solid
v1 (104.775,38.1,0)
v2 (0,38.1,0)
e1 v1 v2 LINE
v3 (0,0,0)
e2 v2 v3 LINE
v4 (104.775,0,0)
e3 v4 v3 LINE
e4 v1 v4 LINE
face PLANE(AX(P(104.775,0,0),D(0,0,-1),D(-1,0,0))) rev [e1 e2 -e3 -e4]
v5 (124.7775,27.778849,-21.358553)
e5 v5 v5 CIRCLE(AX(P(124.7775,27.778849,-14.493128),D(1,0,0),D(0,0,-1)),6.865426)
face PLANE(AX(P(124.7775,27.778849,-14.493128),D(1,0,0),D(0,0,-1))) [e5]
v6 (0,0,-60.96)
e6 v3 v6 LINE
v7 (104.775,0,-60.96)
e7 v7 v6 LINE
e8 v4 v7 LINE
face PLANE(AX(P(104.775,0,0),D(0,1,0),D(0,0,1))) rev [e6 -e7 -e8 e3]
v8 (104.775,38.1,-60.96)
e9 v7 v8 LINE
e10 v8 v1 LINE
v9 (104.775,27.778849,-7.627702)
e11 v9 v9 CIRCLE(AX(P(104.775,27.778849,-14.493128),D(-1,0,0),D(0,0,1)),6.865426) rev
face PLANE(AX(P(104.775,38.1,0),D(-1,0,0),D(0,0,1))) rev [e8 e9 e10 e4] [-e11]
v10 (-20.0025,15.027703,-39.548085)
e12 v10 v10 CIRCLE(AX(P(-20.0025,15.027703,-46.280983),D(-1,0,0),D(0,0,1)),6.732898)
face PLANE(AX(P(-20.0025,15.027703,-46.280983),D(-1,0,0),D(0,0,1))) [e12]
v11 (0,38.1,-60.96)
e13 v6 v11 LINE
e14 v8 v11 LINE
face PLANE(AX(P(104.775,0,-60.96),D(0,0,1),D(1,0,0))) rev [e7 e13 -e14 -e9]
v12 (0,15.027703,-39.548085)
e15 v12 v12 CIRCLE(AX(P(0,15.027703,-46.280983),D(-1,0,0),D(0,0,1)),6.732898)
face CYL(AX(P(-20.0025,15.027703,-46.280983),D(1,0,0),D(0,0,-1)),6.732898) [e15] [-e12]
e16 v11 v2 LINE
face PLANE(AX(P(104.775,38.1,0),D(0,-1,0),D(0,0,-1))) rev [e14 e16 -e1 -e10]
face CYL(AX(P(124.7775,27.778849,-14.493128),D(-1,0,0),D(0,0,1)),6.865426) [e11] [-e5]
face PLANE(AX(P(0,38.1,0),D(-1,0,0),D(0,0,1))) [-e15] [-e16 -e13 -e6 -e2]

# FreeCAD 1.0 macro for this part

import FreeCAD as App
import Part
import Sketcher
from FreeCAD import Vector
Q = App.Units.Quantity

doc = App.newDocument("Part")
body = doc.addObject("PartDesign::Body", "Body")

# Sketch on YZ plane
sketch1 = body.newObject("Sketcher::SketchObject", "Sketch")
sketch1.AttachmentSupport = (doc.getObject("YZ_Plane"), [""])
sketch1.MapMode = "FlatFace"
sketch1.addGeometry([
    Part.LineSegment(Vector(38.1, 0, 0), Vector(0, 0, 0)),
    Part.LineSegment(Vector(0, 0, 0), Vector(0, -60.96, 0)),
    Part.LineSegment(Vector(0, -60.96, 0), Vector(38.1, -60.96, 0)),
    Part.LineSegment(Vector(38.1, -60.96, 0), Vector(38.1, 0, 0)),
], False)
sketch1.addConstraint([
    Sketcher.Constraint("Coincident", 0, 2, 1, 1),
    Sketcher.Constraint("Coincident", 1, 2, 2, 1),
    Sketcher.Constraint("Coincident", 2, 2, 3, 1),
    Sketcher.Constraint("Coincident", 3, 2, 0, 1),
    Sketcher.Constraint("Horizontal", 0),
    Sketcher.Constraint("Vertical", 1),
    Sketcher.Constraint("Horizontal", 2),
    Sketcher.Constraint("Vertical", 3),
    Sketcher.Constraint("Coincident", 0, 2, -1, 1),
    Sketcher.Constraint("DistanceX", 0, 2, 0, 1, Q("1.5 in")),
    Sketcher.Constraint("DistanceY", 1, 2, 1, 1, Q("2.4 in")),
])
pad1 = body.newObject("PartDesign::Pad", "Pad")
pad1.Profile = sketch1
pad1.Length = Q("4.125 in")

# Sketch on YZ plane
sketch2 = body.newObject("Sketcher::SketchObject", "Sketch001")
sketch2.AttachmentSupport = (doc.getObject("YZ_Plane"), [""])
sketch2.MapMode = "FlatFace"
sketch2.addGeometry(Part.Circle(Vector(15.027703, -46.280983, 0), Vector(0, 0, 1), 6.732898), False)
sketch2.addConstraint([
    Sketcher.Constraint("Diameter", 0, Q("13.465796 mm")),
    Sketcher.Constraint("DistanceX", -1, 1, 0, 3, Q("15.027703 mm")),
    Sketcher.Constraint("DistanceY", 0, 3, -1, 1, Q("46.280983 mm")),
])
pad2 = body.newObject("PartDesign::Pad", "Pad001")
pad2.Profile = sketch2
pad2.Length = Q("0.7875 in")
pad2.Reversed = True

# Sketch on YZ plane
sketch3 = body.newObject("Sketcher::SketchObject", "Sketch002")
sketch3.AttachmentSupport = (doc.getObject("YZ_Plane"), [""])
sketch3.MapMode = "FlatFace"
sketch3.AttachmentOffset = App.Placement(Vector(0, 0, 4.125 * 25.4), App.Rotation())
sketch3.addGeometry(Part.Circle(Vector(27.778849, -14.493128, 0), Vector(0, 0, 1), 6.865426), False)
sketch3.addConstraint([
    Sketcher.Constraint("Diameter", 0, Q("13.730851 mm")),
    Sketcher.Constraint("DistanceX", -1, 1, 0, 3, Q("27.778849 mm")),
    Sketcher.Constraint("DistanceY", 0, 3, -1, 1, Q("14.493128 mm")),
])
pad3 = body.newObject("PartDesign::Pad", "Pad002")
pad3.Profile = sketch3
pad3.Length = Q("0.7875 in")

doc.recompute()
